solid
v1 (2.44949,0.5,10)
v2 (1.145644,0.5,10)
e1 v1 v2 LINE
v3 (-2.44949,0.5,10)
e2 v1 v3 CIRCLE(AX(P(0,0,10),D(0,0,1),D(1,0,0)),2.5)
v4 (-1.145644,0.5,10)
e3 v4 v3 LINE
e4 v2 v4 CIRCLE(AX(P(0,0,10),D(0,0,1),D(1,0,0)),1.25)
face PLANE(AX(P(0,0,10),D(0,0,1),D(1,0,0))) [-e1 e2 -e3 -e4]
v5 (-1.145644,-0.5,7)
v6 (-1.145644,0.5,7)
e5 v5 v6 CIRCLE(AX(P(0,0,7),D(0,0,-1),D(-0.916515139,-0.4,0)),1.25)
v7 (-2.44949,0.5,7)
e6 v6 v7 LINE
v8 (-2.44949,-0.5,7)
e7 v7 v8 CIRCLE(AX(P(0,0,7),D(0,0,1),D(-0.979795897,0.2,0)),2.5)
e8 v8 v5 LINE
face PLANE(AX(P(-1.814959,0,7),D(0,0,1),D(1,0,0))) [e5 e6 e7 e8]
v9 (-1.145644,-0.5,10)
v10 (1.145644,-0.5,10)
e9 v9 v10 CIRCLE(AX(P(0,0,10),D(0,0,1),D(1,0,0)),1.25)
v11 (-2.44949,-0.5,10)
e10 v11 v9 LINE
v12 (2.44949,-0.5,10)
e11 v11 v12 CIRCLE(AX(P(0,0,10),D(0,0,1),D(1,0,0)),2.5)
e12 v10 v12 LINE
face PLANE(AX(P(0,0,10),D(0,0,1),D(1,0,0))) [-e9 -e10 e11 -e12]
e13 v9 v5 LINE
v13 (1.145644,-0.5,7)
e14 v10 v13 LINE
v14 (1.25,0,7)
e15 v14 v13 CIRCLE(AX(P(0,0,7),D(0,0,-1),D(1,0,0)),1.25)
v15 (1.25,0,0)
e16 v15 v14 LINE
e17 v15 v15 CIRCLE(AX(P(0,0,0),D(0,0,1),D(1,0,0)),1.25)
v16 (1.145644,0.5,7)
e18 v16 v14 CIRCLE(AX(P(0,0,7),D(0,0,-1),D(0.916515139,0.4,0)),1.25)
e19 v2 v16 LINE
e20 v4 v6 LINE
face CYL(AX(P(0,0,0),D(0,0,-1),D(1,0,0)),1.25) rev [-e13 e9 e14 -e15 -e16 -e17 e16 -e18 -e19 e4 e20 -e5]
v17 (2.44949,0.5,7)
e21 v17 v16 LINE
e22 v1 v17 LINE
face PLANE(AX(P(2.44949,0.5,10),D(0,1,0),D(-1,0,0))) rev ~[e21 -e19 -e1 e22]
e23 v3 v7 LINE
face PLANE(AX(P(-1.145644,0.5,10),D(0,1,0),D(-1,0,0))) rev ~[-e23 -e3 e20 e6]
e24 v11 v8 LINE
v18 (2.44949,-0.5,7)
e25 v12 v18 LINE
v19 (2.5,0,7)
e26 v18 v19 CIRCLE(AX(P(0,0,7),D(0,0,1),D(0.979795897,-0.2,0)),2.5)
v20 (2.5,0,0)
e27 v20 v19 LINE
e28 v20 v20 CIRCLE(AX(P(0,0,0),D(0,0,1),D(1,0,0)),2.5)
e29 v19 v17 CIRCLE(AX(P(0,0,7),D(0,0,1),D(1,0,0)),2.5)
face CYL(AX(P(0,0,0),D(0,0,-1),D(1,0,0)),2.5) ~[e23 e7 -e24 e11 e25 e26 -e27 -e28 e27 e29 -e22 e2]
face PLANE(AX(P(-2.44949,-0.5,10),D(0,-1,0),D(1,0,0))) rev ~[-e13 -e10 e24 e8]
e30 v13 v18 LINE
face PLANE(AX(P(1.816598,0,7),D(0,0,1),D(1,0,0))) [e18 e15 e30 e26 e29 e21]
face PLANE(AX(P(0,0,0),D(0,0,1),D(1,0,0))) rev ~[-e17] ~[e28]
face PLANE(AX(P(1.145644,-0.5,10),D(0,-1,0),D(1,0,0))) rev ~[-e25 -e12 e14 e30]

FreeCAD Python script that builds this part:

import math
import FreeCAD as App
import Part
import Sketcher

doc = App.newDocument("Part")
body = doc.addObject("PartDesign::Body", "Body")

# Sketch on XY plane
sketch1 = body.newObject("Sketcher::SketchObject", "Sketch")
sketch1.AttachmentSupport = (doc.getObject("XY_Plane"), [""])
sketch1.MapMode = "FlatFace"
sketch1.addGeometry([
    Part.Circle(App.Vector(0, 0, 0), App.Vector(0, 0, 1), 2.5),
    Part.Circle(App.Vector(0, 0, 0), App.Vector(0, 0, 1), 1.2),
], False)
sketch1.addConstraint([
    Sketcher.Constraint("Coincident", 0, 3, -1, 1),
    Sketcher.Constraint("Coincident", 1, 3, -1, 1),
    Sketcher.Constraint("Diameter", 0, 5.0),
    Sketcher.Constraint("Diameter", 1, 2.5),
])
pad1 = body.newObject("PartDesign::Pad", "Pad")
pad1.Profile = sketch1
pad1.Length = 10

# Sketch on XY plane
sketch2 = body.newObject("Sketcher::SketchObject", "Sketch001")
sketch2.AttachmentSupport = (doc.getObject("XY_Plane"), [""])
sketch2.MapMode = "FlatFace"
sketch2.AttachmentOffset = App.Placement(App.Vector(0, 0, 10), App.Rotation())
sketch2.addGeometry([
    Part.LineSegment(App.Vector(-1.1, 0.5, 0), App.Vector(-2.4, 0.5, 0)),  # 0
    Part.ArcOfCircle(Part.Circle(App.Vector(0, 0, 0), App.Vector(0, 0, 1), 2.5), math.radians(168), math.radians(192)),  # 1
    Part.LineSegment(App.Vector(-2.4, -0.5, 0), App.Vector(-1.1, -0.5, 0)),  # 2
    Part.ArcOfCircle(Part.Circle(App.Vector(0, 0, 0), App.Vector(0, 0, 1), 1.2), math.radians(156), math.radians(204)),  # 3
    Part.ArcOfCircle(Part.Circle(App.Vector(0, 0, 0), App.Vector(0, 0, 1), 2.5), math.radians(0), math.radians(11.54)),  # 4
    Part.LineSegment(App.Vector(2.4, 0.5, 0), App.Vector(1.1, 0.5, 0)),  # 5
    Part.ArcOfCircle(Part.Circle(App.Vector(0, 0, 0), App.Vector(0, 0, 1), 1.2), math.radians(0), math.radians(24)),  # 6
    Part.ArcOfCircle(Part.Circle(App.Vector(0, 0, 0), App.Vector(0, 0, 1), 1.2), math.radians(-24), math.radians(0)),  # 7
    Part.LineSegment(App.Vector(1.1, -0.5, 0), App.Vector(2.4, -0.5, 0)),  # 8
    Part.ArcOfCircle(Part.Circle(App.Vector(0, 0, 0), App.Vector(0, 0, 1), 2.5), math.radians(-11.54), math.radians(0)),  # 9
], False)
sketch2.addConstraint([
    Sketcher.Constraint("Coincident", 0, 2, 1, 1),
    Sketcher.Constraint("Coincident", 1, 2, 2, 1),
    Sketcher.Constraint("Coincident", 2, 2, 3, 2),
    Sketcher.Constraint("Coincident", 3, 1, 0, 1),
    Sketcher.Constraint("Coincident", 4, 2, 5, 1),
    Sketcher.Constraint("Coincident", 5, 2, 6, 2),
    Sketcher.Constraint("Tangent", 6, 1, 7, 2),
    Sketcher.Constraint("Coincident", 7, 1, 8, 1),
    Sketcher.Constraint("Coincident", 8, 2, 9, 1),
    Sketcher.Constraint("Tangent", 9, 2, 4, 1),
    Sketcher.Constraint("Horizontal", 0),
    Sketcher.Constraint("Horizontal", 2),
    Sketcher.Constraint("Horizontal", 5),
    Sketcher.Constraint("Horizontal", 8),
    Sketcher.Constraint("Coincident", 1, 3, -1, 1),
    Sketcher.Constraint("Coincident", 3, 3, -1, 1),
    Sketcher.Constraint("Coincident", 4, 3, -1, 1),
    Sketcher.Constraint("Coincident", 6, 3, -1, 1),
    Sketcher.Constraint("Equal", 1, 4),
    Sketcher.Constraint("Equal", 3, 6),
    Sketcher.Constraint("Equal", 6, 7),
    Sketcher.Constraint("Equal", 4, 9),
    Sketcher.Constraint("PointOnObject", 6, 1, -1),
    Sketcher.Constraint("PointOnObject", 9, 2, -1),
    Sketcher.Constraint("Horizontal", 3, 1, 4, 2),
    Sketcher.Constraint("Horizontal", 2, 2, 7, 1),
    Sketcher.Constraint("Vertical", 0, 2, 1, 2),
    Sketcher.Constraint("Radius", 1, 2.5),
    Sketcher.Constraint("Radius", 3, 1.25),
    Sketcher.Constraint("DistanceY", 1, 2, 0, 2, 1.0),
])
pocket1 = body.newObject("PartDesign::Pocket", "Pocket")
pocket1.Profile = sketch2
pocket1.Length = 3

doc.recompute()
